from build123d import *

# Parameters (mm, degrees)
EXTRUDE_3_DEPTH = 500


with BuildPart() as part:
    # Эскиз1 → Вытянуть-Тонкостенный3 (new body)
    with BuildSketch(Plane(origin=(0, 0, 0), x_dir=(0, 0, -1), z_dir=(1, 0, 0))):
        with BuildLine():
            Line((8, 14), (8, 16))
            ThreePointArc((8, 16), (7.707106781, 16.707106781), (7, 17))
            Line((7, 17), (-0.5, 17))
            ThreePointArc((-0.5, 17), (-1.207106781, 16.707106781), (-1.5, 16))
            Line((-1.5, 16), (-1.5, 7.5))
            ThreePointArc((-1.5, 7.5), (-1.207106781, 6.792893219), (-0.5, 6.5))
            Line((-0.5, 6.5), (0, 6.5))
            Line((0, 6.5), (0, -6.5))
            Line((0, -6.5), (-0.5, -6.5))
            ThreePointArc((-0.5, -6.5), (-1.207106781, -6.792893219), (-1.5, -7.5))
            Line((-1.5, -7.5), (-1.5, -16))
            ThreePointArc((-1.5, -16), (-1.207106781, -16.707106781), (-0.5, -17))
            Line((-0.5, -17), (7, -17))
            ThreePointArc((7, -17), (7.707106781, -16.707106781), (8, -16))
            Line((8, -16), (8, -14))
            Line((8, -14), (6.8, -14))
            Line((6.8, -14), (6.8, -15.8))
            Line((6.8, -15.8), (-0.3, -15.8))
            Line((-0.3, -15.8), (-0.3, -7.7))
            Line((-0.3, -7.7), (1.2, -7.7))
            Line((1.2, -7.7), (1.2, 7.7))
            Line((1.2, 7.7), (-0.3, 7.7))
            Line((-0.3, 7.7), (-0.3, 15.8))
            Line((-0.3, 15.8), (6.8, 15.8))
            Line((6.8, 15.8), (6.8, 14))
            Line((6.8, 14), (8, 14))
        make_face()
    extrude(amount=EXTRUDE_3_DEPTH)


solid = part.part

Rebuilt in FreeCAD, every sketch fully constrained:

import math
import FreeCAD as App
import Part
import Sketcher

doc = App.newDocument("Part")
body = doc.addObject("PartDesign::Body", "Body")

# Sketch on YZ plane
sketch1 = doc.addObject("Sketcher::SketchObject", "Sketch")
body.addObject(sketch1)
sketch1.AttachmentSupport = (doc.YZ_Plane, [""])
sketch1.MapMode = "FlatFace"
sketch1.addGeometry([
    Part.LineSegment(App.Vector(14, -8, 0), App.Vector(16, -8, 0)),  # 0
    Part.ArcOfCircle(Part.Circle(App.Vector(16, -7, 0), App.Vector(0, 0, 1), 1), math.radians(-90), math.radians(0)),  # 1
    Part.LineSegment(App.Vector(17, -7, 0), App.Vector(17, 0.5, 0)),  # 2
    Part.ArcOfCircle(Part.Circle(App.Vector(16, 0.5, 0), App.Vector(0, 0, 1), 1), math.radians(0), math.radians(90)),  # 3
    Part.LineSegment(App.Vector(16, 1.5, 0), App.Vector(7.5, 1.5, 0)),  # 4
    Part.ArcOfCircle(Part.Circle(App.Vector(7.5, 0.5, 0), App.Vector(0, 0, 1), 1), math.radians(90), math.radians(180)),  # 5
    Part.LineSegment(App.Vector(6.5, 0.5, 0), App.Vector(6.5, 0, 0)),  # 6
    Part.LineSegment(App.Vector(6.5, 0, 0), App.Vector(-6.5, 0, 0)),  # 7
    Part.LineSegment(App.Vector(-6.5, 0, 0), App.Vector(-6.5, 0.5, 0)),  # 8
    Part.ArcOfCircle(Part.Circle(App.Vector(-7.5, 0.5, 0), App.Vector(0, 0, 1), 1), math.radians(0), math.radians(90)),  # 9
    Part.LineSegment(App.Vector(-7.5, 1.5, 0), App.Vector(-16, 1.5, 0)),  # 10
    Part.ArcOfCircle(Part.Circle(App.Vector(-16, 0.5, 0), App.Vector(0, 0, 1), 1), math.radians(90), math.radians(180)),  # 11
    Part.LineSegment(App.Vector(-17, 0.5, 0), App.Vector(-17, -7, 0)),  # 12
    Part.ArcOfCircle(Part.Circle(App.Vector(-16, -7, 0), App.Vector(0, 0, 1), 1), math.radians(-180), math.radians(-90)),  # 13
    Part.LineSegment(App.Vector(-16, -8, 0), App.Vector(-14, -8, 0)),  # 14
    Part.LineSegment(App.Vector(-14, -8, 0), App.Vector(-14, -6.8, 0)),  # 15
    Part.LineSegment(App.Vector(-14, -6.8, 0), App.Vector(-15.8, -6.8, 0)),  # 16
    Part.LineSegment(App.Vector(-15.8, -6.8, 0), App.Vector(-15.8, 0.3, 0)),  # 17
    Part.LineSegment(App.Vector(-15.8, 0.3, 0), App.Vector(-7.7, 0.3, 0)),  # 18
    Part.LineSegment(App.Vector(-7.7, 0.3, 0), App.Vector(-7.7, -1.2, 0)),  # 19
    Part.LineSegment(App.Vector(-7.7, -1.2, 0), App.Vector(7.7, -1.2, 0)),  # 20
    Part.LineSegment(App.Vector(7.7, -1.2, 0), App.Vector(7.7, 0.3, 0)),  # 21
    Part.LineSegment(App.Vector(7.7, 0.3, 0), App.Vector(15.8, 0.3, 0)),  # 22
    Part.LineSegment(App.Vector(15.8, 0.3, 0), App.Vector(15.8, -6.8, 0)),  # 23
    Part.LineSegment(App.Vector(15.8, -6.8, 0), App.Vector(14, -6.8, 0)),  # 24
    Part.LineSegment(App.Vector(14, -6.8, 0), App.Vector(14, -8, 0)),  # 25
], False)
sketch1.addConstraint([
    Sketcher.Constraint("Tangent", 0, 2, 1, 1),
    Sketcher.Constraint("Tangent", 1, 2, 2, 1),
    Sketcher.Constraint("Tangent", 2, 2, 3, 1),
    Sketcher.Constraint("Tangent", 3, 2, 4, 1),
    Sketcher.Constraint("Tangent", 4, 2, 5, 1),
    Sketcher.Constraint("Tangent", 5, 2, 6, 1),
    Sketcher.Constraint("Coincident", 6, 2, 7, 1),
    Sketcher.Constraint("Coincident", 7, 2, 8, 1),
    Sketcher.Constraint("Tangent", 8, 2, 9, 1),
    Sketcher.Constraint("Tangent", 9, 2, 10, 1),
    Sketcher.Constraint("Tangent", 10, 2, 11, 1),
    Sketcher.Constraint("Tangent", 11, 2, 12, 1),
    Sketcher.Constraint("Tangent", 12, 2, 13, 1),
    Sketcher.Constraint("Tangent", 13, 2, 14, 1),
    Sketcher.Constraint("Coincident", 14, 2, 15, 1),
    Sketcher.Constraint("Coincident", 15, 2, 16, 1),
    Sketcher.Constraint("Coincident", 16, 2, 17, 1),
    Sketcher.Constraint("Coincident", 17, 2, 18, 1),
    Sketcher.Constraint("Coincident", 18, 2, 19, 1),
    Sketcher.Constraint("Coincident", 19, 2, 20, 1),
    Sketcher.Constraint("Coincident", 20, 2, 21, 1),
    Sketcher.Constraint("Coincident", 21, 2, 22, 1),
    Sketcher.Constraint("Coincident", 22, 2, 23, 1),
    Sketcher.Constraint("Coincident", 23, 2, 24, 1),
    Sketcher.Constraint("Coincident", 24, 2, 25, 1),
    Sketcher.Constraint("Coincident", 25, 2, 0, 1),
    Sketcher.Constraint("Horizontal", 0),
    Sketcher.Constraint("Vertical", 2),
    Sketcher.Constraint("Horizontal", 4),
    Sketcher.Constraint("Vertical", 6),
    Sketcher.Constraint("Horizontal", 7),
    Sketcher.Constraint("Vertical", 8),
    Sketcher.Constraint("Horizontal", 10),
    Sketcher.Constraint("Vertical", 12),
    Sketcher.Constraint("Horizontal", 14),
    Sketcher.Constraint("Vertical", 15),
    Sketcher.Constraint("Horizontal", 16),
    Sketcher.Constraint("Vertical", 17),
    Sketcher.Constraint("Horizontal", 18),
    Sketcher.Constraint("Vertical", 19),
    Sketcher.Constraint("Horizontal", 20),
    Sketcher.Constraint("Vertical", 21),
    Sketcher.Constraint("Horizontal", 22),
    Sketcher.Constraint("Vertical", 23),
    Sketcher.Constraint("Horizontal", 24),
    Sketcher.Constraint("Vertical", 25),
    Sketcher.Constraint("Equal", 1, 3),
    Sketcher.Constraint("Equal", 3, 5),
    Sketcher.Constraint("Equal", 5, 9),
    Sketcher.Constraint("Equal", 9, 11),
    Sketcher.Constraint("Equal", 11, 13),
    Sketcher.Constraint("Symmetric", 6, 2, 7, 2, -1, 1),
    Sketcher.Constraint("Symmetric", 3, 3, 11, 3, -2),
    Sketcher.Constraint("Symmetric", 18, 2, 21, 2, -2),
    Sketcher.Constraint("Symmetric", 16, 2, 23, 2, -2),
    Sketcher.Constraint("Symmetric", 14, 2, 25, 2, -2),
    Sketcher.Constraint("Radius", 1, 1.0),
    Sketcher.Constraint("DistanceX", 0, 1, 0, 2, 2.0),
    Sketcher.Constraint("DistanceX", 7, 2, 7, 1, 13.0),
    Sketcher.Constraint("DistanceX", 4, 2, 4, 1, 8.5),
    Sketcher.Constraint("DistanceX", 16, 2, 16, 1, 1.8),
    Sketcher.Constraint("DistanceX", 18, 1, 18, 2, 8.1),
    Sketcher.Constraint("DistanceY", 2, 1, 2, 2, 7.5),
    Sketcher.Constraint("DistanceY", 6, 2, 6, 1, 0.5),
    Sketcher.Constraint("DistanceY", 15, 1, 15, 2, 1.2),
    Sketcher.Constraint("DistanceY", 17, 1, 17, 2, 7.1),
    Sketcher.Constraint("DistanceY", 19, 2, 19, 1, 1.5),
])
pad1 = doc.addObject("PartDesign::Pad", "Pad")
body.addObject(pad1)
pad1.Profile = sketch1
pad1.Length = 500

doc.recompute()
